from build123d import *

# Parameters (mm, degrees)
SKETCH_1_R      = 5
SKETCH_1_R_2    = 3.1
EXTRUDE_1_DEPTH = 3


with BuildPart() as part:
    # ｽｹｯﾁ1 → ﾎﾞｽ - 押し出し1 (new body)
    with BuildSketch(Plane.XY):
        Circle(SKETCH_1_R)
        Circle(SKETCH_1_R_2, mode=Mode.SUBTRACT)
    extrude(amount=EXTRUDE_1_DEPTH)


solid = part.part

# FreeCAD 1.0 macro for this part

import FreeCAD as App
import Part
import Sketcher
Q = App.Units.Quantity

doc = App.newDocument("Part")
params = doc.addObject("Spreadsheet::Sheet", "Params")
for row, (alias, value) in enumerate([
    ("sketch1_diameter", "10 mm"),
    ("sketch1_diameter2", "6.2 mm"),
    ("pad1_length", "3 mm"),
], start=1):
    params.set(f"A{row}", alias)
    params.set(f"B{row}", "=" + value)
    params.setAlias(f"B{row}", alias)

body = doc.addObject("PartDesign::Body", "Body")

# Sketch on XY plane
sketch1 = body.newObject("Sketcher::SketchObject", "Sketch")
sketch1.AttachmentSupport = (doc.getObject("XY_Plane"), [""])
sketch1.MapMode = "FlatFace"
sketch1.addGeometry([
    Part.Circle(App.Vector(0, 0, 0), App.Vector(0, 0, 1), 5),
    Part.Circle(App.Vector(0, 0, 0), App.Vector(0, 0, 1), 3.1),
], False)
sketch1.addConstraint([
    Sketcher.Constraint("Coincident", 0, 3, -1, 1),
    Sketcher.Constraint("Coincident", 1, 3, -1, 1),
    Sketcher.Constraint("Diameter", 0, Q("10 mm")),
    Sketcher.Constraint("Diameter", 1, Q("6.2 mm")),
])
sketch1.setExpression("Constraints[2]", "Params.sketch1_diameter")
sketch1.setExpression("Constraints[3]", "Params.sketch1_diameter2")
pad1 = body.newObject("PartDesign::Pad", "Pad")
pad1.Profile = sketch1
pad1.setExpression("Length", "Params.pad1_length")

doc.recompute()
